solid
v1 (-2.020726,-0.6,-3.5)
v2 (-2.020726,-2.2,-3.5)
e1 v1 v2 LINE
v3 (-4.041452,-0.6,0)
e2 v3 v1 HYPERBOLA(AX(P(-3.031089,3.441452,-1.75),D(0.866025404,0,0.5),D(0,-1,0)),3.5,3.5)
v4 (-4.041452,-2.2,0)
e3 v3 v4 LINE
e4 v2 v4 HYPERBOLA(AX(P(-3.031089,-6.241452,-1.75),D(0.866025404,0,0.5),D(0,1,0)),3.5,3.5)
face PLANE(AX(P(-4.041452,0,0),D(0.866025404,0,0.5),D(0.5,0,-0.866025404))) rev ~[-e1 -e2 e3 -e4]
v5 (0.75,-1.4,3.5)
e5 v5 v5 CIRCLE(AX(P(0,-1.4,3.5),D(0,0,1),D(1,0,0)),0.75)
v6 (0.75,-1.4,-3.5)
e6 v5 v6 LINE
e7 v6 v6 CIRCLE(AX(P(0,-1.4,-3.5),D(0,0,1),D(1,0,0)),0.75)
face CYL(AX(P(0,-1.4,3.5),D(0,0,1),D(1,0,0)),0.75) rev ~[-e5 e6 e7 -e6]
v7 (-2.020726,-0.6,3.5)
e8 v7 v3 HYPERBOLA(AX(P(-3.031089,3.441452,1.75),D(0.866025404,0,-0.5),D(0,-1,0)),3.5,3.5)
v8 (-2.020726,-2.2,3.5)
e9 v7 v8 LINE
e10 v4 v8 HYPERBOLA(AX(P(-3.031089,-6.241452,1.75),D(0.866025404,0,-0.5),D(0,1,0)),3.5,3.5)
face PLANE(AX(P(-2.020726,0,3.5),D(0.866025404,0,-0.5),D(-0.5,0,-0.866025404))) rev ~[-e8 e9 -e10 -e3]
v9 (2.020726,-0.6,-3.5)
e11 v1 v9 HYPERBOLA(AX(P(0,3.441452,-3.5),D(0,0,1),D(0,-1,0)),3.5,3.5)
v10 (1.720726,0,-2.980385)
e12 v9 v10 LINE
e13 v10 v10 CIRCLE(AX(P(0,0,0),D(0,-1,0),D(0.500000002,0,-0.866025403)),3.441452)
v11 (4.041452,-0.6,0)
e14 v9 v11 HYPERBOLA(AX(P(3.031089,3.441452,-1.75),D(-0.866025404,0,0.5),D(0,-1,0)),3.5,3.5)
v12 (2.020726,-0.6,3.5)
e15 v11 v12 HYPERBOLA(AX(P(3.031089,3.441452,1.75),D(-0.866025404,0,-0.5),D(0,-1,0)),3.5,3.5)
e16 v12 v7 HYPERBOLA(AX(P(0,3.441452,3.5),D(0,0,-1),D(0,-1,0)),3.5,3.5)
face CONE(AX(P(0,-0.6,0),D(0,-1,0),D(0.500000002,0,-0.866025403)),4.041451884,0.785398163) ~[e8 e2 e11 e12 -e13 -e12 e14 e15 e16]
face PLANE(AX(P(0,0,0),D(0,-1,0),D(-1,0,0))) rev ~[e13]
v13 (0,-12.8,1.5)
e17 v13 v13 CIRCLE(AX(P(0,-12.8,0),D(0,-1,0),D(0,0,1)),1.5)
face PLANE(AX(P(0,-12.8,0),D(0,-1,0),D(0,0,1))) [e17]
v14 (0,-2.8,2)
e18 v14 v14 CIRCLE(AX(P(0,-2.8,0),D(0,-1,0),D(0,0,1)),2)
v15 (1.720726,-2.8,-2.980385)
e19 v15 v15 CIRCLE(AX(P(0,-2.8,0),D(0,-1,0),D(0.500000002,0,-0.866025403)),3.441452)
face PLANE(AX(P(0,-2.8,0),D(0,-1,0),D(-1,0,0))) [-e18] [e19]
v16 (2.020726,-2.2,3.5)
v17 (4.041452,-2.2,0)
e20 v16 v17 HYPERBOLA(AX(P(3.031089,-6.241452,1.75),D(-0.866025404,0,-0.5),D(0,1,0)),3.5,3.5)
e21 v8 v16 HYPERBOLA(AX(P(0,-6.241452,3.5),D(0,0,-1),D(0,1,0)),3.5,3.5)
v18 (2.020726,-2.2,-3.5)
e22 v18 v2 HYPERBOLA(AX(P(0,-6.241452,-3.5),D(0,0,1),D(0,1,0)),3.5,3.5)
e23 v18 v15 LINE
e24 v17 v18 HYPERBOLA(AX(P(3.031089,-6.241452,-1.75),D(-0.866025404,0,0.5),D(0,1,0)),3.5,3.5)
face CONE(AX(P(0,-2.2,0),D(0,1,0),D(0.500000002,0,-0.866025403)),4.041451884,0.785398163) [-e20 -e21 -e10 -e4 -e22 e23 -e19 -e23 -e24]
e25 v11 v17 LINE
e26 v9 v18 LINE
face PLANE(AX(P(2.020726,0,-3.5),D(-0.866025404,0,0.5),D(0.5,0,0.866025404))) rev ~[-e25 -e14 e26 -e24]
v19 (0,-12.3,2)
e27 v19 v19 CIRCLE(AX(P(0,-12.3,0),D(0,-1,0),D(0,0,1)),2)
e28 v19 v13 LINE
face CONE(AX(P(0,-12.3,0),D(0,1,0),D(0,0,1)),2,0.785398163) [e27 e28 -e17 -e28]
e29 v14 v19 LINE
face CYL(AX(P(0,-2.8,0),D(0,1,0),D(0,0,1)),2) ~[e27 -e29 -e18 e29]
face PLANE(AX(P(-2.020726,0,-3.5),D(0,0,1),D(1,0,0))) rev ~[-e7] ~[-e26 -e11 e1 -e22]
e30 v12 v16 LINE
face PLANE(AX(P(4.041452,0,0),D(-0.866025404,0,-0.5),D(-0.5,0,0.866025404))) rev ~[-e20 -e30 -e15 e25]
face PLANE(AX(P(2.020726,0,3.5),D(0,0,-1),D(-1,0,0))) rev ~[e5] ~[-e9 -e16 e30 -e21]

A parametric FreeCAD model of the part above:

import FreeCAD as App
import Part
import Sketcher
from FreeCAD import Vector
Q = App.Units.Quantity


def edges_at(feature, points):
    """Names of the edges that pass closest to the given points."""
    edges = feature.Shape.Edges
    near = lambda p: min(range(len(edges)), key=lambda i: edges[i].distToShape(Part.Vertex(*p))[0])
    return sorted({f"Edge{near(p) + 1}" for p in points})


def add_polygon(sketch, points):
    """Adds a closed chain of lines whose ends are joined by coincident constraints."""
    first, n = sketch.GeometryCount, len(points)
    for a, b in zip(points, points[1:] + points[:1]):
        sketch.addGeometry(Part.LineSegment(App.Vector(*a, 0), App.Vector(*b, 0)), False)
    for i in range(n):
        sketch.addConstraint(Sketcher.Constraint("Coincident", first + i, 2, first + (i + 1) % n, 1))

doc = App.newDocument("Part")
body = doc.addObject("PartDesign::Body", "Body")

sketch1 = doc.addObject("Sketcher::SketchObject", "Sketch")
body.addObject(sketch1)
sketch1.AttachmentSupport = (doc.XZ_Plane, [""])
sketch1.MapMode = "FlatFace"
add_polygon(sketch1, [(2, -3.5), (-2, -3.5), (-4, 0), (-2, 3.5), (2, 3.5), (4, 0)])
sketch1.addConstraint([
    Sketcher.Constraint("Horizontal", 0),
    Sketcher.Constraint("Horizontal", 3),
    Sketcher.Constraint("Symmetric", 0, 2, 3, 2, -1, 1),
    Sketcher.Constraint("Symmetric", 1, 2, 4, 2, -1, 1),
    Sketcher.Constraint("PointOnObject", 1, 2, -1),
    Sketcher.Constraint("Parallel", 2, 5),
    Sketcher.Constraint("Vertical", 0, 2, 2, 2),
    Sketcher.Constraint("Angle", 1, Q("120 deg")),
    Sketcher.Constraint("DistanceY", 0, 2, 2, 2, 7.0),
    Sketcher.Constraint("DistanceX", 0, 2, 0, 1, 4.041452),
])
pad1 = doc.addObject("PartDesign::Pad", "Pad")
body.addObject(pad1)
pad1.Profile = sketch1
pad1.Length = 2.8

sketch2 = doc.addObject("Sketcher::SketchObject", "Sketch001")
body.addObject(sketch2)
sketch2.AttachmentSupport = (doc.XZ_Plane, [""])
sketch2.MapMode = "FlatFace"
sketch2.AttachmentOffset = App.Placement(Vector(0, 0, 2.8), App.Rotation())
sketch2.addGeometry(Part.Circle(Vector(0, 0, 0), Vector(0, 0, 1), 2), False)
sketch2.addConstraint([
    Sketcher.Constraint("Coincident", 0, 3, -1, 1),
    Sketcher.Constraint("Diameter", 0, 4.0),
])
pad2 = doc.addObject("PartDesign::Pad", "Pad001")
body.addObject(pad2)
pad2.Profile = sketch2
pad2.Length = 10
doc.recompute()

chamfer = doc.addObject("PartDesign::Chamfer", "Chamfer")
body.addObject(chamfer)
chamfer.Base = (pad2, edges_at(pad2, [(0, -12.8, -2)]))
chamfer.Size = 0.5

sketch3 = doc.addObject("Sketcher::SketchObject", "Sketch002")
body.addObject(sketch3)
sketch3.AttachmentSupport = (doc.XY_Plane, [""])
sketch3.MapMode = "FlatFace"
add_polygon(sketch3, [(-4, -0.6), (-3.4, 0), (-4, 0)])
add_polygon(sketch3, [(-3.4, -2.8), (-4, -2.2), (-4, -2.8)])
sketch3.addConstraint([
    Sketcher.Constraint("Horizontal", 1),
    Sketcher.Constraint("Vertical", 2),
    Sketcher.Constraint("Vertical", 4),
    Sketcher.Constraint("Horizontal", 5),
    Sketcher.Constraint("PointOnObject", 0, 2, -1),
    Sketcher.Constraint("Perpendicular", 0, 3),
    Sketcher.Constraint("Vertical", 2, 2, 3, 2),
    Sketcher.Constraint("Vertical", 0, 2, 5, 2),
    Sketcher.Constraint("Equal", 5, 2),
    Sketcher.Constraint("DistanceX", 1, 2, 1, 1, 0.6),
    Sketcher.Constraint("DistanceY", 3, 2, -1, 1, 2.2),
    Sketcher.Constraint("DistanceX", 0, 2, -1, 1, 3.441452),
])
groove = doc.addObject("PartDesign::Groove", "Groove")
body.addObject(groove)
groove.Profile = sketch3
groove.ReferenceAxis = (sketch3, ["V_Axis"])
groove.Angle = 360

sketch4 = doc.addObject("Sketcher::SketchObject", "Sketch003")
body.addObject(sketch4)
sketch4.AttachmentSupport = (doc.XY_Plane, [""])
sketch4.MapMode = "FlatFace"
sketch4.AttachmentOffset = App.Placement(Vector(0, 0, 3.5), App.Rotation())
sketch4.addGeometry(Part.Circle(Vector(0, -1.4, 0), Vector(0, 0, 1), 0.8), False)
sketch4.addConstraint([
    Sketcher.Constraint("PointOnObject", 0, 3, -2),
    Sketcher.Constraint("Diameter", 0, 1.5),
    Sketcher.Constraint("DistanceY", 0, 3, -1, 1, 1.4),
])
pocket1 = doc.addObject("PartDesign::Pocket", "Pocket")
body.addObject(pocket1)
pocket1.Profile = sketch4
pocket1.Type = "ThroughAll"

doc.recompute()
